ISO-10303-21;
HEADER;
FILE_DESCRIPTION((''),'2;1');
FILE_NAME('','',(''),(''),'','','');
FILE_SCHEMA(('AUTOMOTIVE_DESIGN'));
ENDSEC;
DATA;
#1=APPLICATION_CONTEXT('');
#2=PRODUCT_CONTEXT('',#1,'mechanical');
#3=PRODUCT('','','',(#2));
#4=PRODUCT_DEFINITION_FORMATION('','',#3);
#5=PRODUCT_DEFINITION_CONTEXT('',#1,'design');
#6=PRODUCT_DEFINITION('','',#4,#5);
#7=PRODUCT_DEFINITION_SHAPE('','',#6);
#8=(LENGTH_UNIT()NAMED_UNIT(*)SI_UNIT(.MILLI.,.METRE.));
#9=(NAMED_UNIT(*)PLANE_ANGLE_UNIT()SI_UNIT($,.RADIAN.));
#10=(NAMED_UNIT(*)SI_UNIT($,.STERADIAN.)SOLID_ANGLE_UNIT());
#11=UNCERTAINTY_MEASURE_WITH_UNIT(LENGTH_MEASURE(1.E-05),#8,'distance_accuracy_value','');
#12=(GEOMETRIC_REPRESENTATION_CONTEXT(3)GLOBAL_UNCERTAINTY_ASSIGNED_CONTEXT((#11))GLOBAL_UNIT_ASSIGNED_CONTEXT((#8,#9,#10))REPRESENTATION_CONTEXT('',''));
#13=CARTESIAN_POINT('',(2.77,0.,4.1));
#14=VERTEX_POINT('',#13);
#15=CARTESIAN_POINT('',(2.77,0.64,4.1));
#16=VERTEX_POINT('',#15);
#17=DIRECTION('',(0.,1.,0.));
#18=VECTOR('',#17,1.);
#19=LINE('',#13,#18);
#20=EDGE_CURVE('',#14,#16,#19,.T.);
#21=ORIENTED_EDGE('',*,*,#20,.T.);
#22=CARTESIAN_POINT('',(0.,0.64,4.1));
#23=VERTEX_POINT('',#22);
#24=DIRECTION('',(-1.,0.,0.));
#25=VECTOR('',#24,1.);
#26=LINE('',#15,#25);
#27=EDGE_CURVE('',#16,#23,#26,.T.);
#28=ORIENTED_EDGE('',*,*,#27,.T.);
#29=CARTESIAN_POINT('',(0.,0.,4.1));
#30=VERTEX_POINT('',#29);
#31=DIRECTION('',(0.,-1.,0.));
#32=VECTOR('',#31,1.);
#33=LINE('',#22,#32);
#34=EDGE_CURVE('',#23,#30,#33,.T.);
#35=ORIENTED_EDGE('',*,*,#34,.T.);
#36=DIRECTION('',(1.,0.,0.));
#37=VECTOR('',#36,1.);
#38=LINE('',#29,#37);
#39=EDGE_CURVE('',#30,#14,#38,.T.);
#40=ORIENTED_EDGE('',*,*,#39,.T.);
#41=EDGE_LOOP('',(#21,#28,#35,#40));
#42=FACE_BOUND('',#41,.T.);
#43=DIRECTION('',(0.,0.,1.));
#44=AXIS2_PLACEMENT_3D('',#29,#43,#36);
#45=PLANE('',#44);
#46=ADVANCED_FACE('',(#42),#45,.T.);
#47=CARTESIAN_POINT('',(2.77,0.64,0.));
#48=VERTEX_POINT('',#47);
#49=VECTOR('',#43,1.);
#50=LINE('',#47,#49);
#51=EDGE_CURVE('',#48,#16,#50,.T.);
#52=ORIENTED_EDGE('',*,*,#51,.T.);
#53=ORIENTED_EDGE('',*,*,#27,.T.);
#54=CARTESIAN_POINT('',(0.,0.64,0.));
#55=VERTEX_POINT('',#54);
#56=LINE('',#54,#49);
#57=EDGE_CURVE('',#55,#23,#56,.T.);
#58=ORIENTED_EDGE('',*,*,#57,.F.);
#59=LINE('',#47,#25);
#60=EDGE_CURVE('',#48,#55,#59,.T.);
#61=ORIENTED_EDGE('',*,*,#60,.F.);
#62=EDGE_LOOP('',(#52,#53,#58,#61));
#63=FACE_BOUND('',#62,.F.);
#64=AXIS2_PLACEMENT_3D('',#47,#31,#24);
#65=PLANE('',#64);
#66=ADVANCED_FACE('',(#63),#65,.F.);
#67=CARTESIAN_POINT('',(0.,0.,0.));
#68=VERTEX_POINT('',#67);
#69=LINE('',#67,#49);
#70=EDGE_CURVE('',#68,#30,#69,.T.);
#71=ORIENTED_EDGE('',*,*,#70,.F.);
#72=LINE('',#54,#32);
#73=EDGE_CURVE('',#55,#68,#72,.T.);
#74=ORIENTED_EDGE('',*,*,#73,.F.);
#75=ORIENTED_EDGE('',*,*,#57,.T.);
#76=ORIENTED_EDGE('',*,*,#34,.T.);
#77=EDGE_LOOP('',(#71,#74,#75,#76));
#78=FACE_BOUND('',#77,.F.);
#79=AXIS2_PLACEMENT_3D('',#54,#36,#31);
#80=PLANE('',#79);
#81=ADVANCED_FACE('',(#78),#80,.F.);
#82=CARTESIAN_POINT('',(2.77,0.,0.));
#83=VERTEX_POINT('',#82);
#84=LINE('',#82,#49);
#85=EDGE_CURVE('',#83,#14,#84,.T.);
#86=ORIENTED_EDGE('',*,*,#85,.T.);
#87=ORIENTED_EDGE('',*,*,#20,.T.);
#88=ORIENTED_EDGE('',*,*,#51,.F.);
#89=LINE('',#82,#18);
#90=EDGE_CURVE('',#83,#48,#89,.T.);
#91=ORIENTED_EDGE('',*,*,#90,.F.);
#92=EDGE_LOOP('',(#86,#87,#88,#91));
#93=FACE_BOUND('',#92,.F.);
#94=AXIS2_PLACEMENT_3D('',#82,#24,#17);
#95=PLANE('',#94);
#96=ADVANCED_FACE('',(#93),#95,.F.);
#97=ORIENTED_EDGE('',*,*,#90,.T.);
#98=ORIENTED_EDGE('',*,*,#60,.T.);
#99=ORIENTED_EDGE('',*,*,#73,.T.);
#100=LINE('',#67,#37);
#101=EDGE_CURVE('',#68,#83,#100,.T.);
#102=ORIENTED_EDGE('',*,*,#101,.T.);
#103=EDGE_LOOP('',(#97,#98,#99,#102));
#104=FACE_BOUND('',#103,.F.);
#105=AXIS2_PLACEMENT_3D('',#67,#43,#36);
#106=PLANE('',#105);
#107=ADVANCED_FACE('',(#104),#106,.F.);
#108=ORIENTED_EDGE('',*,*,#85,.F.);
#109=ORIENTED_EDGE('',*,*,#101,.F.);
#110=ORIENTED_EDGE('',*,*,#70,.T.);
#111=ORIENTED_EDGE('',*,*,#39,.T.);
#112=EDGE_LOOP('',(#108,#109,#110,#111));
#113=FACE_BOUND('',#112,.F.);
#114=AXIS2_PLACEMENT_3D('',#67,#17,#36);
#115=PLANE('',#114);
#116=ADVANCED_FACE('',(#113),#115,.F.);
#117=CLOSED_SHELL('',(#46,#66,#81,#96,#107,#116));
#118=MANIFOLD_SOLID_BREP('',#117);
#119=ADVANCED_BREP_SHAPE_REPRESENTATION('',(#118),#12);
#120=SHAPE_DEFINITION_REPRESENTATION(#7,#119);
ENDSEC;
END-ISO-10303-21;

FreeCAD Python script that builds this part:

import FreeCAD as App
import Part
import Sketcher

doc = App.newDocument("Part")
body = doc.addObject("PartDesign::Body", "Body")

sketch1 = body.newObject("Sketcher::SketchObject", "Sketch")
sketch1.AttachmentSupport = (doc.getObject("XY_Plane"), [""])
sketch1.MapMode = "FlatFace"
sketch1.addGeometry([
    Part.LineSegment(App.Vector(0, 0.6, 0), App.Vector(0, 0, 0)),
    Part.LineSegment(App.Vector(0, 0, 0), App.Vector(2.8, 0, 0)),
    Part.LineSegment(App.Vector(2.8, 0, 0), App.Vector(2.8, 0.6, 0)),
    Part.LineSegment(App.Vector(2.8, 0.6, 0), App.Vector(0, 0.6, 0)),
], False)
sketch1.addConstraint([
    Sketcher.Constraint("Coincident", 0, 2, 1, 1),
    Sketcher.Constraint("Coincident", 1, 2, 2, 1),
    Sketcher.Constraint("Coincident", 2, 2, 3, 1),
    Sketcher.Constraint("Coincident", 3, 2, 0, 1),
    Sketcher.Constraint("Vertical", 0),
    Sketcher.Constraint("Horizontal", 1),
    Sketcher.Constraint("Vertical", 2),
    Sketcher.Constraint("Horizontal", 3),
    Sketcher.Constraint("Coincident", 0, 2, -1, 1),
    Sketcher.Constraint("DistanceX", 1, 1, 1, 2, 2.77),
    Sketcher.Constraint("DistanceY", 0, 2, 0, 1, 0.64),
])
pad1 = body.newObject("PartDesign::Pad", "Pad")
pad1.Profile = sketch1
pad1.Length = 4.1

doc.recompute()
